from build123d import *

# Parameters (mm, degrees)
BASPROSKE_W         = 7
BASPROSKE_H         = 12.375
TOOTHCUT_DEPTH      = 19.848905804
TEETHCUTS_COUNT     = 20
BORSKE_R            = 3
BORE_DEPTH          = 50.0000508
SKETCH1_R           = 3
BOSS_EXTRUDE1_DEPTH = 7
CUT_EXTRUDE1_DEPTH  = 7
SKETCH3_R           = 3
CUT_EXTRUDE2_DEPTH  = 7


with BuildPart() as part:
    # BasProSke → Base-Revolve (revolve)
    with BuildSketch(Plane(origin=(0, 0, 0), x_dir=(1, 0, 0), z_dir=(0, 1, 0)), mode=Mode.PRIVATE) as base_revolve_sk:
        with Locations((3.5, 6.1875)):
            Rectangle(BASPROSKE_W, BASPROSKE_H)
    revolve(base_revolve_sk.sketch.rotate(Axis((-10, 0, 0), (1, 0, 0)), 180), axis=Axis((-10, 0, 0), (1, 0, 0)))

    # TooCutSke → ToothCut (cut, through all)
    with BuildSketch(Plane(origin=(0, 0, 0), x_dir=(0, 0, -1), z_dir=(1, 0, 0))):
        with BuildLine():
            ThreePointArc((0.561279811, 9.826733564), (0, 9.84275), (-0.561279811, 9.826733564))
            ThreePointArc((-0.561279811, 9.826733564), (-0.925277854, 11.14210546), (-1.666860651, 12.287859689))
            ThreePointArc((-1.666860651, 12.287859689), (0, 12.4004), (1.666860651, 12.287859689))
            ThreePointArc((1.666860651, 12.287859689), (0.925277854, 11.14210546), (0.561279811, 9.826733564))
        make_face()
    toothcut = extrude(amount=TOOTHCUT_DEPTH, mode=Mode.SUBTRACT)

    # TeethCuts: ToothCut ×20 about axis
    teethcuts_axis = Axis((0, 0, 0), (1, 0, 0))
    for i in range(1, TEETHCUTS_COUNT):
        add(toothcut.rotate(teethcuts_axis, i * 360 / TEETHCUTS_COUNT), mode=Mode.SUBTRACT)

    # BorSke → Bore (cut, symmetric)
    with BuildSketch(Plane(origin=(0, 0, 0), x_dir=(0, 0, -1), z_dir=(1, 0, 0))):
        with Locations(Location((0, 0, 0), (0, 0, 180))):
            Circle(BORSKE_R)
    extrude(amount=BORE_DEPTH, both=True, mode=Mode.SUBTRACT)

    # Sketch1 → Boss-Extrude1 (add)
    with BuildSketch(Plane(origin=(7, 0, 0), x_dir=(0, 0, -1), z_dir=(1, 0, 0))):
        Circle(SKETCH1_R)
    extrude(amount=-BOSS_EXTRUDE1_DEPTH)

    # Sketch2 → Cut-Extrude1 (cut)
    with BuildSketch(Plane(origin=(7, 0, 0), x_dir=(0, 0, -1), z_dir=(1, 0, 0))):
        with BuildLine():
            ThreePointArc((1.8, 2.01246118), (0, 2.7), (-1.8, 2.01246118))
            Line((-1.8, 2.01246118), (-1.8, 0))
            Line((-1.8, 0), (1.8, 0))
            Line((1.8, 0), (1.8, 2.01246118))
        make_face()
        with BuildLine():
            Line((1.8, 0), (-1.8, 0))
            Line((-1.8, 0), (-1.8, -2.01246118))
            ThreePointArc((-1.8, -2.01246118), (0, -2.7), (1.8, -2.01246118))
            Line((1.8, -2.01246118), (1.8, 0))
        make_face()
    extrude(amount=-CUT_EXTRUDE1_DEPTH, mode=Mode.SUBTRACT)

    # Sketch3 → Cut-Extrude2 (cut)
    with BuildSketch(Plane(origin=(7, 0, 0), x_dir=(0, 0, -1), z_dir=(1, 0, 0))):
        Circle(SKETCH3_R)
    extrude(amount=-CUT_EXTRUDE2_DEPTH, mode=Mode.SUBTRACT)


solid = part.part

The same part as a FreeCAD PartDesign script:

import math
import FreeCAD as App
import Part
import Sketcher
Q = App.Units.Quantity

doc = App.newDocument("Part")
body = doc.addObject("PartDesign::Body", "Body")

# Sketch on XZ plane
sketch1 = doc.addObject("Sketcher::SketchObject", "Sketch")
body.addObject(sketch1)
sketch1.AttachmentSupport = (doc.XZ_Plane, [""])
sketch1.MapMode = "FlatFace"
sketch1.addGeometry([
    Part.LineSegment(App.Vector(0, -12.375, 0), App.Vector(0, 0, 0)),
    Part.LineSegment(App.Vector(0, 0, 0), App.Vector(7, 0, 0)),
    Part.LineSegment(App.Vector(7, 0, 0), App.Vector(7, -12.375, 0)),
    Part.LineSegment(App.Vector(7, -12.375, 0), App.Vector(0, -12.375, 0)),
], False)
sketch1.addConstraint([
    Sketcher.Constraint("Coincident", 0, 2, 1, 1),
    Sketcher.Constraint("Coincident", 1, 2, 2, 1),
    Sketcher.Constraint("Coincident", 2, 2, 3, 1),
    Sketcher.Constraint("Coincident", 3, 2, 0, 1),
    Sketcher.Constraint("Vertical", 0),
    Sketcher.Constraint("Horizontal", 1),
    Sketcher.Constraint("Vertical", 2),
    Sketcher.Constraint("Horizontal", 3),
    Sketcher.Constraint("Coincident", 0, 2, -1, 1),
    Sketcher.Constraint("DistanceX", 1, 1, 1, 2, Q("7 mm")),
    Sketcher.Constraint("DistanceY", 0, 1, 0, 2, Q("12.375 mm")),
])
revolution = doc.addObject("PartDesign::Revolution", "Revolution")
body.addObject(revolution)
revolution.Profile = sketch1
revolution.ReferenceAxis = (sketch1, ["H_Axis"])
revolution.Angle = 360

# Sketch on YZ plane
sketch2 = doc.addObject("Sketcher::SketchObject", "Sketch001")
body.addObject(sketch2)
sketch2.AttachmentSupport = (doc.YZ_Plane, [""])
sketch2.MapMode = "FlatFace"
sketch2.addGeometry([
    Part.ArcOfCircle(Part.Circle(App.Vector(0, 0, 0), App.Vector(0, 0, 1), 9.84275), math.radians(-3.269048), math.radians(3.269048)),
    Part.ArcOfCircle(Part.Circle(App.Vector(9.298136, -5.030126, 0), App.Vector(0, 0, 1), 4.5), math.radians(48.36499), math.radians(83.254113)),
    Part.ArcOfCircle(Part.Circle(App.Vector(0, 0, 0), App.Vector(0, 0, 1), 12.4004), math.radians(-7.725077), math.radians(7.725077)),
    Part.ArcOfCircle(Part.Circle(App.Vector(9.298136, 5.030126, 0), App.Vector(0, 0, 1), 4.5), math.radians(-83.254113), math.radians(-48.36499)),
], False)
sketch2.addConstraint([
    Sketcher.Constraint("Coincident", 0, 1, 1, 2),
    Sketcher.Constraint("Coincident", 1, 1, 2, 1),
    Sketcher.Constraint("Coincident", 2, 2, 3, 2),
    Sketcher.Constraint("Coincident", 3, 1, 0, 2),
    Sketcher.Constraint("Coincident", 0, 3, -1, 1),
    Sketcher.Constraint("Coincident", 2, 3, -1, 1),
    Sketcher.Constraint("Equal", 1, 3),
    Sketcher.Constraint("Symmetric", 1, 3, 3, 3, -1),
    Sketcher.Constraint("Radius", 1, Q("4.5 mm")),
    Sketcher.Constraint("Radius", 2, Q("12.4004 mm")),
    Sketcher.Constraint("Radius", 0, Q("9.84275 mm")),
    Sketcher.Constraint("DistanceY", 0, 1, -1, 1, Q("0.56128 mm")),
    Sketcher.Constraint("DistanceX", -1, 1, 1, 1, Q("12.28786 mm")),
])
pocket1 = doc.addObject("PartDesign::Pocket", "Pocket")
body.addObject(pocket1)
pocket1.Profile = sketch2
pocket1.Type = "ThroughAll"
pocket1.Reversed = True
doc.recompute()

polarpattern = doc.addObject("PartDesign::PolarPattern", "PolarPattern")
body.addObject(polarpattern)
polarpattern.Originals = [pocket1]
polarpattern.Axis = (doc.X_Axis, [""])
polarpattern.Angle = 360
polarpattern.Occurrences = 20
body.Tip = polarpattern

# Sketch on YZ plane
sketch3 = doc.addObject("Sketcher::SketchObject", "Sketch002")
body.addObject(sketch3)
sketch3.AttachmentSupport = (doc.YZ_Plane, [""])
sketch3.MapMode = "FlatFace"
sketch3.addGeometry(Part.Circle(App.Vector(0, 0, 0), App.Vector(0, 0, 1), 3), False)
sketch3.addConstraint([
    Sketcher.Constraint("Coincident", 0, 3, -1, 1),
    Sketcher.Constraint("Diameter", 0, Q("6 mm")),
])
pocket2 = doc.addObject("PartDesign::Pocket", "Pocket001")
body.addObject(pocket2)
pocket2.Profile = sketch3
pocket2.Length = 100.000102
pocket2.Midplane = True

# Sketch on YZ plane
sketch4 = doc.addObject("Sketcher::SketchObject", "Sketch003")
body.addObject(sketch4)
sketch4.AttachmentSupport = (doc.YZ_Plane, [""])
sketch4.MapMode = "FlatFace"
sketch4.AttachmentOffset = App.Placement(App.Vector(0, 0, 7), App.Rotation())
sketch4.addGeometry(Part.Circle(App.Vector(0, 0, 0), App.Vector(0, 0, 1), 3), False)
sketch4.addConstraint([
    Sketcher.Constraint("Coincident", 0, 3, -1, 1),
    Sketcher.Constraint("Diameter", 0, Q("6 mm")),
])
pad1 = doc.addObject("PartDesign::Pad", "Pad")
body.addObject(pad1)
pad1.Profile = sketch4
pad1.Length = 7
pad1.Reversed = True

# Sketch on YZ plane
sketch5 = doc.addObject("Sketcher::SketchObject", "Sketch004")
body.addObject(sketch5)
sketch5.AttachmentSupport = (doc.YZ_Plane, [""])
sketch5.MapMode = "FlatFace"
sketch5.AttachmentOffset = App.Placement(App.Vector(0, 0, 7), App.Rotation())
sketch5.addGeometry([
    Part.ArcOfCircle(Part.Circle(App.Vector(0, 0, 0), App.Vector(0, 0, 1), 2.7), math.radians(-41.810315), math.radians(41.810315)),
    Part.LineSegment(App.Vector(2.012461, 1.8, 0), App.Vector(-2.012461, 1.8, 0)),
    Part.ArcOfCircle(Part.Circle(App.Vector(0, 0, 0), App.Vector(0, 0, 1), 2.7), math.radians(138.189685), math.radians(221.810315)),
    Part.LineSegment(App.Vector(-2.012461, -1.8, 0), App.Vector(2.012461, -1.8, 0)),
], False)
sketch5.addConstraint([
    Sketcher.Constraint("Coincident", 0, 2, 1, 1),
    Sketcher.Constraint("Coincident", 1, 2, 2, 1),
    Sketcher.Constraint("Coincident", 2, 2, 3, 1),
    Sketcher.Constraint("Coincident", 3, 2, 0, 1),
    Sketcher.Constraint("Horizontal", 1),
    Sketcher.Constraint("Horizontal", 3),
    Sketcher.Constraint("Coincident", 0, 3, -1, 1),
    Sketcher.Constraint("Coincident", 2, 3, -1, 1),
    Sketcher.Constraint("Equal", 0, 2),
    Sketcher.Constraint("Vertical", 1, 2, 2, 2),
    Sketcher.Constraint("Radius", 0, Q("2.7 mm")),
    Sketcher.Constraint("DistanceY", -1, 1, 0, 2, Q("1.8 mm")),
])
pocket3 = doc.addObject("PartDesign::Pocket", "Pocket002")
body.addObject(pocket3)
pocket3.Profile = sketch5
pocket3.Length = 7

# Sketch on YZ plane
sketch6 = doc.addObject("Sketcher::SketchObject", "Sketch005")
body.addObject(sketch6)
sketch6.AttachmentSupport = (doc.YZ_Plane, [""])
sketch6.MapMode = "FlatFace"
sketch6.AttachmentOffset = App.Placement(App.Vector(0, 0, 7), App.Rotation())
sketch6.addGeometry(Part.Circle(App.Vector(0, 0, 0), App.Vector(0, 0, 1), 3), False)
sketch6.addConstraint([
    Sketcher.Constraint("Coincident", 0, 3, -1, 1),
    Sketcher.Constraint("Diameter", 0, Q("6 mm")),
])
pocket4 = doc.addObject("PartDesign::Pocket", "Pocket003")
body.addObject(pocket4)
pocket4.Profile = sketch6
pocket4.Length = 7

doc.recompute()
